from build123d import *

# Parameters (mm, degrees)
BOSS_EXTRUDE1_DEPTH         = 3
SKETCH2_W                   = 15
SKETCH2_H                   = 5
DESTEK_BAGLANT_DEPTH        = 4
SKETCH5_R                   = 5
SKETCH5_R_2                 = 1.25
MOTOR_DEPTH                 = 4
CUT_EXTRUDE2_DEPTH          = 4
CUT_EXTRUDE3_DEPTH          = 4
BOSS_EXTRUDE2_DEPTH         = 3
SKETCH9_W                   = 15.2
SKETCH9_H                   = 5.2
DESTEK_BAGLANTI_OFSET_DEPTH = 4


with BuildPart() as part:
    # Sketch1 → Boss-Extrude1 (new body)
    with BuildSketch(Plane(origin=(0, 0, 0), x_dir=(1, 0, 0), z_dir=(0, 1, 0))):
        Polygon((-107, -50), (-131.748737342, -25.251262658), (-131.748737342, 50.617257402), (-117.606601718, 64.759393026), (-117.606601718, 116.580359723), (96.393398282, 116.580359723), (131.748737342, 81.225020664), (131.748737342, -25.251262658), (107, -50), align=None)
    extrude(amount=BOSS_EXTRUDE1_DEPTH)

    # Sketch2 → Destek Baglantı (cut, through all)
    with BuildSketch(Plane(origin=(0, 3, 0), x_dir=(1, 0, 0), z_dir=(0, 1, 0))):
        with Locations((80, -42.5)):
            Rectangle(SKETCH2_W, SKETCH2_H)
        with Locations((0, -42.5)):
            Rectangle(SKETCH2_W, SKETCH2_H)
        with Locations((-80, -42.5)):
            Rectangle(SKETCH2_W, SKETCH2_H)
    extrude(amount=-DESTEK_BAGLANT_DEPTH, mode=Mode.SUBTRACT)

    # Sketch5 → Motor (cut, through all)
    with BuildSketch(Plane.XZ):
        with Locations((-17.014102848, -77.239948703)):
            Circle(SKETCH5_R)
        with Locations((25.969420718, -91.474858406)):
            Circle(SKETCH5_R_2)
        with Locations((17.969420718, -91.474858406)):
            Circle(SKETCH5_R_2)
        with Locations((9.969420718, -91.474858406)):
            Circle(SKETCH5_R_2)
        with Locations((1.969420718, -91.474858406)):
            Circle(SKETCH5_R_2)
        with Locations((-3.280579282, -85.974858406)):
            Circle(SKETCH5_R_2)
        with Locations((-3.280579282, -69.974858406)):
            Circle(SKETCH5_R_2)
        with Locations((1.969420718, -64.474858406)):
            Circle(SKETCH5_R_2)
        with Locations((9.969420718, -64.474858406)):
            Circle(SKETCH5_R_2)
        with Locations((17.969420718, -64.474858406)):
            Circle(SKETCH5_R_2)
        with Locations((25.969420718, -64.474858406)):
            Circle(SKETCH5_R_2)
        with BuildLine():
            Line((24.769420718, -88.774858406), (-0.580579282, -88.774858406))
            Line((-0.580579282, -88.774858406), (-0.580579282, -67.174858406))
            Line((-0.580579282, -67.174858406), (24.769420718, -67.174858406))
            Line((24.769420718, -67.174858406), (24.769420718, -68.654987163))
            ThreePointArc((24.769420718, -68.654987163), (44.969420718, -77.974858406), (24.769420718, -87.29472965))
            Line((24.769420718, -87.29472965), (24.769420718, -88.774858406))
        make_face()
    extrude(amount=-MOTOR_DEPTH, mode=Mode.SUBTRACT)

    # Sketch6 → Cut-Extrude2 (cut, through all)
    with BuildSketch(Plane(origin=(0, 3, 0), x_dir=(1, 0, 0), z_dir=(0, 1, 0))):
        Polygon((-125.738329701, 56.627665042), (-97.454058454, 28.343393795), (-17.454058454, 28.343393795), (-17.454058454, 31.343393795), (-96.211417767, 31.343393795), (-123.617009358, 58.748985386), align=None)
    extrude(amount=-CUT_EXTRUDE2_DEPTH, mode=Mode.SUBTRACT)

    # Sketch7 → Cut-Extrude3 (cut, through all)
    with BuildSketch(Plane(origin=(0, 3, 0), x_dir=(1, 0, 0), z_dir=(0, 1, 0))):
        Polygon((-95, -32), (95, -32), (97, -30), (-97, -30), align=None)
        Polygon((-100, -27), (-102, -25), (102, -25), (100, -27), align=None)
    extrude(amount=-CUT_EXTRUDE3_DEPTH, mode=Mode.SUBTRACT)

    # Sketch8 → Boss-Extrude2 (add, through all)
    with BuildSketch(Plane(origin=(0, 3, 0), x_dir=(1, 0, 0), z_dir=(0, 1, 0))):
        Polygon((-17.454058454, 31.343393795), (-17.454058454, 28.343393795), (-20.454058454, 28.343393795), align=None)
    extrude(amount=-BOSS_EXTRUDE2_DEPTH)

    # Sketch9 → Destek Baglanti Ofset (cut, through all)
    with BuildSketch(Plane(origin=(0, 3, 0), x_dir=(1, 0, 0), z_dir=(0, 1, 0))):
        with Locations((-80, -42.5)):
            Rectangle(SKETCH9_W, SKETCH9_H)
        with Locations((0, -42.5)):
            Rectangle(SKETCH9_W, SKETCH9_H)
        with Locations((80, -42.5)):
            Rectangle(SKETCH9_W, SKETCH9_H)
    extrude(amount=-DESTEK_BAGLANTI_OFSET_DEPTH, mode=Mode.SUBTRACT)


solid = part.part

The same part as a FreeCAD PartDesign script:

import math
import FreeCAD as App
import Part
import Sketcher
from FreeCAD import Vector
Q = App.Units.Quantity

doc = App.newDocument("Part")
body = doc.addObject("PartDesign::Body", "Body")

# Sketch on XZ plane
sketch1 = doc.addObject("Sketcher::SketchObject", "Sketch")
body.addObject(sketch1)
sketch1.AttachmentSupport = (doc.XZ_Plane, [""])
sketch1.MapMode = "FlatFace"
sketch1.addGeometry([
    Part.LineSegment(Vector(-132, 25, 0), Vector(-107, 50, 0)),  # 0
    Part.LineSegment(Vector(-107, 50, 0), Vector(107, 50, 0)),  # 1
    Part.LineSegment(Vector(107, 50, 0), Vector(132, 25, 0)),  # 2
    Part.LineSegment(Vector(132, 25, 0), Vector(132, -81, 0)),  # 3
    Part.LineSegment(Vector(132, -81, 0), Vector(96, -117, 0)),  # 4
    Part.LineSegment(Vector(96, -117, 0), Vector(-118, -117, 0)),  # 5
    Part.LineSegment(Vector(-118, -117, 0), Vector(-118, -65, 0)),  # 6
    Part.LineSegment(Vector(-118, -65, 0), Vector(-132, -51, 0)),  # 7
    Part.LineSegment(Vector(-132, -51, 0), Vector(-132, 25, 0)),  # 8
], False)
sketch1.addConstraint([
    Sketcher.Constraint("Coincident", 0, 2, 1, 1),
    Sketcher.Constraint("Coincident", 1, 2, 2, 1),
    Sketcher.Constraint("Coincident", 2, 2, 3, 1),
    Sketcher.Constraint("Coincident", 3, 2, 4, 1),
    Sketcher.Constraint("Coincident", 4, 2, 5, 1),
    Sketcher.Constraint("Coincident", 5, 2, 6, 1),
    Sketcher.Constraint("Coincident", 6, 2, 7, 1),
    Sketcher.Constraint("Coincident", 7, 2, 8, 1),
    Sketcher.Constraint("Coincident", 8, 2, 0, 1),
    Sketcher.Constraint("Horizontal", 1),
    Sketcher.Constraint("Vertical", 3),
    Sketcher.Constraint("Horizontal", 5),
    Sketcher.Constraint("Vertical", 6),
    Sketcher.Constraint("Vertical", 8),
    Sketcher.Constraint("Symmetric", 2, 2, 8, 2, -2),
    Sketcher.Constraint("Perpendicular", 0, 2),
    Sketcher.Constraint("Perpendicular", 2, 4),
    Sketcher.Constraint("Perpendicular", 4, 7),
    Sketcher.Constraint("Equal", 1, 5),
    Sketcher.Constraint("Equal", 0, 2),
    Sketcher.Constraint("DistanceX", 1, 1, 1, 2, Q("214 mm")),
    Sketcher.Constraint("Distance", 0, Q("35 mm")),
    Sketcher.Constraint("Distance", 4, Q("50 mm")),
    Sketcher.Constraint("DistanceY", -1, 1, 0, 2, Q("50 mm")),
    Sketcher.Constraint("DistanceY", 8, 1, 8, 2, Q("75.86852 mm")),
    Sketcher.Constraint("DistanceY", 3, 2, 3, 1, Q("106.476283 mm")),
])
pad1 = doc.addObject("PartDesign::Pad", "Pad")
body.addObject(pad1)
pad1.Profile = sketch1
pad1.Length = 3
pad1.Reversed = True

# Sketch on XZ plane
sketch2 = doc.addObject("Sketcher::SketchObject", "Sketch001")
body.addObject(sketch2)
sketch2.AttachmentSupport = (doc.XZ_Plane, [""])
sketch2.MapMode = "FlatFace"
sketch2.AttachmentOffset = App.Placement(Vector(0, 0, -3), App.Rotation())
sketch2.addGeometry([
    Part.LineSegment(Vector(72, 40, 0), Vector(72, 45, 0)),  # 0
    Part.LineSegment(Vector(72, 45, 0), Vector(88, 45, 0)),  # 1
    Part.LineSegment(Vector(88, 45, 0), Vector(88, 40, 0)),  # 2
    Part.LineSegment(Vector(88, 40, 0), Vector(72, 40, 0)),  # 3
    Part.LineSegment(Vector(-8, 40, 0), Vector(-8, 45, 0)),  # 4
    Part.LineSegment(Vector(-8, 45, 0), Vector(8, 45, 0)),  # 5
    Part.LineSegment(Vector(8, 45, 0), Vector(8, 40, 0)),  # 6
    Part.LineSegment(Vector(8, 40, 0), Vector(-8, 40, 0)),  # 7
    Part.LineSegment(Vector(-88, 40, 0), Vector(-88, 45, 0)),  # 8
    Part.LineSegment(Vector(-88, 45, 0), Vector(-72, 45, 0)),  # 9
    Part.LineSegment(Vector(-72, 45, 0), Vector(-72, 40, 0)),  # 10
    Part.LineSegment(Vector(-72, 40, 0), Vector(-88, 40, 0)),  # 11
], False)
sketch2.addConstraint([
    Sketcher.Constraint("Coincident", 0, 2, 1, 1),
    Sketcher.Constraint("Coincident", 1, 2, 2, 1),
    Sketcher.Constraint("Coincident", 2, 2, 3, 1),
    Sketcher.Constraint("Coincident", 3, 2, 0, 1),
    Sketcher.Constraint("Coincident", 4, 2, 5, 1),
    Sketcher.Constraint("Coincident", 5, 2, 6, 1),
    Sketcher.Constraint("Coincident", 6, 2, 7, 1),
    Sketcher.Constraint("Coincident", 7, 2, 4, 1),
    Sketcher.Constraint("Coincident", 8, 2, 9, 1),
    Sketcher.Constraint("Coincident", 9, 2, 10, 1),
    Sketcher.Constraint("Coincident", 10, 2, 11, 1),
    Sketcher.Constraint("Coincident", 11, 2, 8, 1),
    Sketcher.Constraint("Vertical", 0),
    Sketcher.Constraint("Horizontal", 1),
    Sketcher.Constraint("Vertical", 2),
    Sketcher.Constraint("Horizontal", 3),
    Sketcher.Constraint("Vertical", 4),
    Sketcher.Constraint("Horizontal", 5),
    Sketcher.Constraint("Vertical", 6),
    Sketcher.Constraint("Horizontal", 7),
    Sketcher.Constraint("Vertical", 8),
    Sketcher.Constraint("Horizontal", 9),
    Sketcher.Constraint("Vertical", 10),
    Sketcher.Constraint("Horizontal", 11),
    Sketcher.Constraint("Symmetric", 1, 2, 8, 2, -2),
    Sketcher.Constraint("Symmetric", 3, 2, 10, 2, -2),
    Sketcher.Constraint("Horizontal", 1, 2, 4, 2),
    Sketcher.Constraint("Horizontal", 3, 2, 6, 2),
    Sketcher.Constraint("Equal", 3, 5),
    Sketcher.Constraint("DistanceX", 1, 1, 1, 2, Q("15 mm")),
    Sketcher.Constraint("DistanceY", 0, 1, 0, 2, Q("5 mm")),
    Sketcher.Constraint("DistanceY", -1, 1, 0, 2, Q("45 mm")),
    Sketcher.Constraint("DistanceX", 4, 2, 0, 2, Q("80 mm")),
    Sketcher.Constraint("DistanceX", 8, 2, 4, 2, Q("80 mm")),
])
pocket1 = doc.addObject("PartDesign::Pocket", "Pocket")
body.addObject(pocket1)
pocket1.Profile = sketch2
pocket1.Type = "ThroughAll"
pocket1.Reversed = True

# Sketch on XZ plane
sketch3 = doc.addObject("Sketcher::SketchObject", "Sketch002")
body.addObject(sketch3)
sketch3.AttachmentSupport = (doc.XZ_Plane, [""])
sketch3.MapMode = "FlatFace"
sketch3.addGeometry([
    Part.Circle(Vector(-17, -77.2, 0), Vector(0, 0, 1), 5),  # 0
    Part.Circle(Vector(26, -91.5, 0), Vector(0, 0, 1), 1.2),  # 1
    Part.Circle(Vector(18, -91.5, 0), Vector(0, 0, 1), 1.2),  # 2
    Part.Circle(Vector(10, -91.5, 0), Vector(0, 0, 1), 1.2),  # 3
    Part.Circle(Vector(2, -91.5, 0), Vector(0, 0, 1), 1.2),  # 4
    Part.Circle(Vector(-3.3, -86, 0), Vector(0, 0, 1), 1.2),  # 5
    Part.Circle(Vector(-3.3, -70, 0), Vector(0, 0, 1), 1.2),  # 6
    Part.Circle(Vector(2, -64.5, 0), Vector(0, 0, 1), 1.2),  # 7
    Part.Circle(Vector(10, -64.5, 0), Vector(0, 0, 1), 1.2),  # 8
    Part.Circle(Vector(18, -64.5, 0), Vector(0, 0, 1), 1.2),  # 9
    Part.Circle(Vector(26, -64.5, 0), Vector(0, 0, 1), 1.2),  # 10
    Part.LineSegment(Vector(-0.6, -88.8, 0), Vector(24.8, -88.8, 0)),  # 11
    Part.LineSegment(Vector(24.8, -88.8, 0), Vector(24.8, -87.3, 0)),  # 12
    Part.ArcOfCircle(Part.Circle(Vector(32.7, -78, 0), Vector(0, 0, 1), 12.2), math.radians(-130), math.radians(130)),  # 13
    Part.LineSegment(Vector(24.8, -68.7, 0), Vector(24.8, -67.2, 0)),  # 14
    Part.LineSegment(Vector(24.8, -67.2, 0), Vector(-0.6, -67.2, 0)),  # 15
    Part.LineSegment(Vector(-0.6, -67.2, 0), Vector(-0.6, -88.8, 0)),  # 16
], False)
sketch3.addConstraint([
    Sketcher.Constraint("Coincident", 11, 2, 12, 1),
    Sketcher.Constraint("Coincident", 12, 2, 13, 1),
    Sketcher.Constraint("Coincident", 13, 2, 14, 1),
    Sketcher.Constraint("Coincident", 14, 2, 15, 1),
    Sketcher.Constraint("Coincident", 15, 2, 16, 1),
    Sketcher.Constraint("Coincident", 16, 2, 11, 1),
    Sketcher.Constraint("Horizontal", 11),
    Sketcher.Constraint("Vertical", 12),
    Sketcher.Constraint("Vertical", 14),
    Sketcher.Constraint("Horizontal", 15),
    Sketcher.Constraint("Vertical", 16),
    Sketcher.Constraint("Equal", 1, 2),
    Sketcher.Constraint("Equal", 2, 3),
    Sketcher.Constraint("Equal", 3, 4),
    Sketcher.Constraint("Equal", 4, 5),
    Sketcher.Constraint("Equal", 5, 6),
    Sketcher.Constraint("Equal", 6, 7),
    Sketcher.Constraint("Equal", 7, 8),
    Sketcher.Constraint("Equal", 8, 9),
    Sketcher.Constraint("Equal", 9, 10),
    Sketcher.Constraint("Horizontal", 1, 3, 2, 3),
    Sketcher.Constraint("Horizontal", 2, 3, 3, 3),
    Sketcher.Constraint("Horizontal", 3, 3, 4, 3),
    Sketcher.Constraint("Horizontal", 7, 3, 8, 3),
    Sketcher.Constraint("Horizontal", 8, 3, 9, 3),
    Sketcher.Constraint("Horizontal", 9, 3, 10, 3),
    Sketcher.Constraint("Vertical", 5, 3, 6, 3),
    Sketcher.Constraint("Vertical", 4, 3, 7, 3),
    Sketcher.Constraint("Vertical", 3, 3, 8, 3),
    Sketcher.Constraint("Vertical", 2, 3, 9, 3),
    Sketcher.Constraint("Vertical", 1, 3, 10, 3),
    Sketcher.Constraint("Vertical", 12, 2, 13, 2),
    Sketcher.Constraint("Equal", 12, 14),
    Sketcher.Constraint("Diameter", 0, Q("10 mm")),
    Sketcher.Constraint("Diameter", 1, Q("2.5 mm")),
    Sketcher.Constraint("Radius", 13, Q("12.25 mm")),
    Sketcher.Constraint("DistanceY", 16, 2, 16, 1, Q("21.6 mm")),
    Sketcher.Constraint("DistanceX", 2, 3, 1, 3, Q("8 mm")),
    Sketcher.Constraint("DistanceX", 3, 3, 2, 3, Q("8 mm")),
    Sketcher.Constraint("DistanceX", 4, 3, 3, 3, Q("8 mm")),
    Sketcher.Constraint("DistanceY", 5, 3, 6, 3, Q("16 mm")),
    Sketcher.Constraint("DistanceY", 4, 3, 7, 3, Q("27 mm")),
    Sketcher.Constraint("DistanceX", 11, 1, 11, 2, Q("25.35 mm")),
    Sketcher.Constraint("DistanceY", 4, 3, 5, 3, Q("5.5 mm")),
    Sketcher.Constraint("DistanceY", 1, 3, 13, 3, Q("13.5 mm")),
    Sketcher.Constraint("DistanceX", 11, 2, 1, 3, Q("1.2 mm")),
    Sketcher.Constraint("DistanceX", 6, 3, 15, 2, Q("2.7 mm")),
    Sketcher.Constraint("DistanceX", 1, 3, 13, 3, Q("6.75 mm")),
    Sketcher.Constraint("DistanceY", 0, 3, -1, 1, Q("77.239949 mm")),
    Sketcher.Constraint("DistanceX", -1, 1, 1, 3, Q("25.969421 mm")),
    Sketcher.Constraint("DistanceY", 1, 3, -1, 1, Q("91.474858 mm")),
    Sketcher.Constraint("DistanceX", 0, 3, -1, 1, Q("17.014103 mm")),
])
pocket2 = doc.addObject("PartDesign::Pocket", "Pocket001")
body.addObject(pocket2)
pocket2.Profile = sketch3
pocket2.Type = "ThroughAll"

# Sketch on XZ plane
sketch4 = doc.addObject("Sketcher::SketchObject", "Sketch003")
body.addObject(sketch4)
sketch4.AttachmentSupport = (doc.XZ_Plane, [""])
sketch4.MapMode = "FlatFace"
sketch4.AttachmentOffset = App.Placement(Vector(0, 0, -3), App.Rotation())
sketch4.addGeometry([
    Part.LineSegment(Vector(-125.7, -56.6, 0), Vector(-97.5, -28.3, 0)),  # 0
    Part.LineSegment(Vector(-97.5, -28.3, 0), Vector(-17.5, -28.3, 0)),  # 1
    Part.LineSegment(Vector(-17.5, -28.3, 0), Vector(-17.5, -31.3, 0)),  # 2
    Part.LineSegment(Vector(-17.5, -31.3, 0), Vector(-96.2, -31.3, 0)),  # 3
    Part.LineSegment(Vector(-96.2, -31.3, 0), Vector(-123.6, -58.7, 0)),  # 4
    Part.LineSegment(Vector(-123.6, -58.7, 0), Vector(-125.7, -56.6, 0)),  # 5
], False)
sketch4.addConstraint([
    Sketcher.Constraint("Coincident", 0, 2, 1, 1),
    Sketcher.Constraint("Coincident", 1, 2, 2, 1),
    Sketcher.Constraint("Coincident", 2, 2, 3, 1),
    Sketcher.Constraint("Coincident", 3, 2, 4, 1),
    Sketcher.Constraint("Coincident", 4, 2, 5, 1),
    Sketcher.Constraint("Coincident", 5, 2, 0, 1),
    Sketcher.Constraint("Horizontal", 1),
    Sketcher.Constraint("Vertical", 2),
    Sketcher.Constraint("Horizontal", 3),
    Sketcher.Constraint("Parallel", 0, 4),
    Sketcher.Constraint("Perpendicular", 4, 5),
    Sketcher.Constraint("DistanceX", 1, 1, 1, 2, Q("80 mm")),
    Sketcher.Constraint("DistanceY", 2, 2, 2, 1, Q("3 mm")),
    Sketcher.Constraint("Angle", 0, Q("45 deg")),
    Sketcher.Constraint("Distance", 0, Q("40 mm")),
    Sketcher.Constraint("Distance", 5, Q("3 mm")),
    Sketcher.Constraint("DistanceX", 0, 2, -1, 1, Q("97.454058 mm")),
    Sketcher.Constraint("DistanceY", 0, 2, -1, 1, Q("28.343394 mm")),
])
pocket3 = doc.addObject("PartDesign::Pocket", "Pocket002")
body.addObject(pocket3)
pocket3.Profile = sketch4
pocket3.Type = "ThroughAll"
pocket3.Reversed = True

# Sketch on XZ plane
sketch5 = doc.addObject("Sketcher::SketchObject", "Sketch004")
body.addObject(sketch5)
sketch5.AttachmentSupport = (doc.XZ_Plane, [""])
sketch5.MapMode = "FlatFace"
sketch5.AttachmentOffset = App.Placement(Vector(0, 0, -3), App.Rotation())
sketch5.addGeometry([
    Part.LineSegment(Vector(-95, 32, 0), Vector(95, 32, 0)),  # 0
    Part.LineSegment(Vector(95, 32, 0), Vector(97, 30, 0)),  # 1
    Part.LineSegment(Vector(97, 30, 0), Vector(-97, 30, 0)),  # 2
    Part.LineSegment(Vector(-97, 30, 0), Vector(-95, 32, 0)),  # 3
    Part.LineSegment(Vector(-102, 25, 0), Vector(-100, 27, 0)),  # 4
    Part.LineSegment(Vector(-100, 27, 0), Vector(100, 27, 0)),  # 5
    Part.LineSegment(Vector(100, 27, 0), Vector(102, 25, 0)),  # 6
    Part.LineSegment(Vector(102, 25, 0), Vector(-102, 25, 0)),  # 7
], False)
sketch5.addConstraint([
    Sketcher.Constraint("Coincident", 0, 2, 1, 1),
    Sketcher.Constraint("Coincident", 1, 2, 2, 1),
    Sketcher.Constraint("Coincident", 2, 2, 3, 1),
    Sketcher.Constraint("Coincident", 3, 2, 0, 1),
    Sketcher.Constraint("Coincident", 4, 2, 5, 1),
    Sketcher.Constraint("Coincident", 5, 2, 6, 1),
    Sketcher.Constraint("Coincident", 6, 2, 7, 1),
    Sketcher.Constraint("Coincident", 7, 2, 4, 1),
    Sketcher.Constraint("Horizontal", 0),
    Sketcher.Constraint("Horizontal", 2),
    Sketcher.Constraint("Horizontal", 5),
    Sketcher.Constraint("Horizontal", 7),
    Sketcher.Constraint("Perpendicular", 1, 3),
    Sketcher.Constraint("Parallel", 3, 4),
    Sketcher.Constraint("Perpendicular", 4, 6),
    Sketcher.Constraint("Equal", 1, 3),
    Sketcher.Constraint("Equal", 3, 4),
    Sketcher.Constraint("DistanceX", 0, 1, 0, 2, Q("190 mm")),
    Sketcher.Constraint("DistanceX", 2, 2, 2, 1, Q("194 mm")),
    Sketcher.Constraint("DistanceX", 5, 1, 5, 2, Q("200 mm")),
    Sketcher.Constraint("DistanceX", -1, 1, 0, 2, Q("95 mm")),
    Sketcher.Constraint("DistanceY", -1, 1, 0, 2, Q("32 mm")),
    Sketcher.Constraint("DistanceX", 4, 2, -1, 1, Q("100 mm")),
    Sketcher.Constraint("DistanceY", -1, 1, 4, 2, Q("27 mm")),
])
pocket4 = doc.addObject("PartDesign::Pocket", "Pocket003")
body.addObject(pocket4)
pocket4.Profile = sketch5
pocket4.Type = "ThroughAll"
pocket4.Reversed = True

# Sketch on XZ plane
sketch6 = doc.addObject("Sketcher::SketchObject", "Sketch005")
body.addObject(sketch6)
sketch6.AttachmentSupport = (doc.XZ_Plane, [""])
sketch6.MapMode = "FlatFace"
sketch6.AttachmentOffset = App.Placement(Vector(0, 0, -3), App.Rotation())
sketch6.addGeometry([
    Part.LineSegment(Vector(-17.5, -28.3, 0), Vector(-17.5, -31.3, 0)),
    Part.LineSegment(Vector(-17.5, -31.3, 0), Vector(-20.5, -28.3, 0)),
    Part.LineSegment(Vector(-20.5, -28.3, 0), Vector(-17.5, -28.3, 0)),
], False)
sketch6.addConstraint([
    Sketcher.Constraint("Coincident", 0, 2, 1, 1),
    Sketcher.Constraint("Coincident", 1, 2, 2, 1),
    Sketcher.Constraint("Coincident", 2, 2, 0, 1),
    Sketcher.Constraint("Vertical", 0),
    Sketcher.Constraint("Horizontal", 2),
    Sketcher.Constraint("Equal", 2, 0),
    Sketcher.Constraint("DistanceX", 2, 1, 2, 2, Q("3 mm")),
    Sketcher.Constraint("DistanceX", 0, 2, -1, 1, Q("17.454058 mm")),
    Sketcher.Constraint("DistanceY", 0, 2, -1, 1, Q("31.343394 mm")),
])
pad2 = doc.addObject("PartDesign::Pad", "Pad001")
body.addObject(pad2)
pad2.Profile = sketch6
pad2.Length = 3

# Sketch on XZ plane
sketch7 = doc.addObject("Sketcher::SketchObject", "Sketch006")
body.addObject(sketch7)
sketch7.AttachmentSupport = (doc.XZ_Plane, [""])
sketch7.MapMode = "FlatFace"
sketch7.AttachmentOffset = App.Placement(Vector(0, 0, -3), App.Rotation())
sketch7.addGeometry([
    Part.LineSegment(Vector(-88, 40, 0), Vector(-88, 45, 0)),  # 0
    Part.LineSegment(Vector(-88, 45, 0), Vector(-72, 45, 0)),  # 1
    Part.LineSegment(Vector(-72, 45, 0), Vector(-72, 40, 0)),  # 2
    Part.LineSegment(Vector(-72, 40, 0), Vector(-88, 40, 0)),  # 3
    Part.LineSegment(Vector(-8, 40, 0), Vector(-8, 45, 0)),  # 4
    Part.LineSegment(Vector(-8, 45, 0), Vector(8, 45, 0)),  # 5
    Part.LineSegment(Vector(8, 45, 0), Vector(8, 40, 0)),  # 6
    Part.LineSegment(Vector(8, 40, 0), Vector(-8, 40, 0)),  # 7
    Part.LineSegment(Vector(72, 40, 0), Vector(72, 45, 0)),  # 8
    Part.LineSegment(Vector(72, 45, 0), Vector(88, 45, 0)),  # 9
    Part.LineSegment(Vector(88, 45, 0), Vector(88, 40, 0)),  # 10
    Part.LineSegment(Vector(88, 40, 0), Vector(72, 40, 0)),  # 11
], False)
sketch7.addConstraint([
    Sketcher.Constraint("Coincident", 0, 2, 1, 1),
    Sketcher.Constraint("Coincident", 1, 2, 2, 1),
    Sketcher.Constraint("Coincident", 2, 2, 3, 1),
    Sketcher.Constraint("Coincident", 3, 2, 0, 1),
    Sketcher.Constraint("Coincident", 4, 2, 5, 1),
    Sketcher.Constraint("Coincident", 5, 2, 6, 1),
    Sketcher.Constraint("Coincident", 6, 2, 7, 1),
    Sketcher.Constraint("Coincident", 7, 2, 4, 1),
    Sketcher.Constraint("Coincident", 8, 2, 9, 1),
    Sketcher.Constraint("Coincident", 9, 2, 10, 1),
    Sketcher.Constraint("Coincident", 10, 2, 11, 1),
    Sketcher.Constraint("Coincident", 11, 2, 8, 1),
    Sketcher.Constraint("Vertical", 0),
    Sketcher.Constraint("Horizontal", 1),
    Sketcher.Constraint("Vertical", 2),
    Sketcher.Constraint("Horizontal", 3),
    Sketcher.Constraint("Vertical", 4),
    Sketcher.Constraint("Horizontal", 5),
    Sketcher.Constraint("Vertical", 6),
    Sketcher.Constraint("Horizontal", 7),
    Sketcher.Constraint("Vertical", 8),
    Sketcher.Constraint("Horizontal", 9),
    Sketcher.Constraint("Vertical", 10),
    Sketcher.Constraint("Horizontal", 11),
    Sketcher.Constraint("Symmetric", 1, 2, 8, 2, -2),
    Sketcher.Constraint("Symmetric", 3, 2, 10, 2, -2),
    Sketcher.Constraint("Horizontal", 1, 2, 4, 2),
    Sketcher.Constraint("Horizontal", 3, 2, 6, 2),
    Sketcher.Constraint("Equal", 3, 5),
    Sketcher.Constraint("DistanceX", 1, 1, 1, 2, Q("15.2 mm")),
    Sketcher.Constraint("DistanceY", 0, 1, 0, 2, Q("5.2 mm")),
    Sketcher.Constraint("DistanceX", 0, 2, 4, 2, Q("80 mm")),
    Sketcher.Constraint("DistanceX", 4, 2, 8, 2, Q("80 mm")),
    Sketcher.Constraint("DistanceY", -1, 1, 0, 2, Q("45.1 mm")),
])
pocket5 = doc.addObject("PartDesign::Pocket", "Pocket004")
body.addObject(pocket5)
pocket5.Profile = sketch7
pocket5.Type = "ThroughAll"
pocket5.Reversed = True

doc.recompute()
